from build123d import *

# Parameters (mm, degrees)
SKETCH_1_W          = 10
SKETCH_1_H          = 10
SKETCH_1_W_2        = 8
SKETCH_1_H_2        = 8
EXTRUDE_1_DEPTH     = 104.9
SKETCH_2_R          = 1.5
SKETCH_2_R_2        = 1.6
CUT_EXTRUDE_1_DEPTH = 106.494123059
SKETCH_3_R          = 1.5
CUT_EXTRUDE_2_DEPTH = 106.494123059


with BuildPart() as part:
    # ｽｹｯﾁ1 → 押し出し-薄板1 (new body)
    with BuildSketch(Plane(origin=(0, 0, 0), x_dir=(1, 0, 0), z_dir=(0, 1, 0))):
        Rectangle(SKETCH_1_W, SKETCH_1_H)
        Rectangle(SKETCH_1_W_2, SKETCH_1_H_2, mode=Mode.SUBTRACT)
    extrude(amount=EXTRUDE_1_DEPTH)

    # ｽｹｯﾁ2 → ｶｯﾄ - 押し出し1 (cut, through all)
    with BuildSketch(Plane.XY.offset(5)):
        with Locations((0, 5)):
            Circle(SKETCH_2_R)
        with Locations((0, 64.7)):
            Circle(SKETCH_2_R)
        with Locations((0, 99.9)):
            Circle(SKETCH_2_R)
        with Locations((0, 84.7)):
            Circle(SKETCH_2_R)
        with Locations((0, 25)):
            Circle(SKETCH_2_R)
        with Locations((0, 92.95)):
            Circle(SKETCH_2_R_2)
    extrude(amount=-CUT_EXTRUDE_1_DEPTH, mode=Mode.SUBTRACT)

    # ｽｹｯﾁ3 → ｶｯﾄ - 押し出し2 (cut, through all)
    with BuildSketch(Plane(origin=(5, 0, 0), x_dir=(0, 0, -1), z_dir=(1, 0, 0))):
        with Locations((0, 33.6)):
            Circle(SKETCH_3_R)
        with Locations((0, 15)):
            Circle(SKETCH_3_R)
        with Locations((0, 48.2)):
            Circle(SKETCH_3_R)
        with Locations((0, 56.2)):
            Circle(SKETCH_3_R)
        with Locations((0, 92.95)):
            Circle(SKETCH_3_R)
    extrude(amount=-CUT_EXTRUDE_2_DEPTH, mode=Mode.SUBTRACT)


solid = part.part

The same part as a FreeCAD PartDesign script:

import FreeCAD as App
import Part
import Sketcher

V = App.Vector

doc = App.newDocument("Part")
params = doc.addObject("Spreadsheet::Sheet", "Params")
for row, (alias, value) in enumerate([
    ("sketch1_width", "10 mm"),
    ("sketch1_width2", "8 mm"),
    ("pad1_length", "104.9 mm"),
    ("sketch2_diameter", "3 mm"),
    ("sketch2_diameter2", "3.2 mm"),
    ("sketch3_diameter", "3 mm"),
], start=1):
    params.set(f"A{row}", alias)
    params.set(f"B{row}", "=" + value)
    params.setAlias(f"B{row}", alias)

body = doc.addObject("PartDesign::Body", "Body")

# Sketch on XZ plane
sketch1 = body.newObject("Sketcher::SketchObject", "Sketch")
sketch1.AttachmentSupport = (doc.getObject("XZ_Plane"), [""])
sketch1.MapMode = "FlatFace"
sketch1.addGeometry([
    Part.LineSegment(V(-5, -5, 0), V(-5, 5, 0)),  # 0
    Part.LineSegment(V(-5, 5, 0), V(5, 5, 0)),  # 1
    Part.LineSegment(V(5, 5, 0), V(5, -5, 0)),  # 2
    Part.LineSegment(V(5, -5, 0), V(-5, -5, 0)),  # 3
    Part.LineSegment(V(4, 4, 0), V(-4, 4, 0)),  # 4
    Part.LineSegment(V(-4, 4, 0), V(-4, -4, 0)),  # 5
    Part.LineSegment(V(-4, -4, 0), V(4, -4, 0)),  # 6
    Part.LineSegment(V(4, -4, 0), V(4, 4, 0)),  # 7
], False)
sketch1.addConstraint([
    Sketcher.Constraint("Coincident", 0, 2, 1, 1),
    Sketcher.Constraint("Coincident", 1, 2, 2, 1),
    Sketcher.Constraint("Coincident", 2, 2, 3, 1),
    Sketcher.Constraint("Coincident", 3, 2, 0, 1),
    Sketcher.Constraint("Coincident", 4, 2, 5, 1),
    Sketcher.Constraint("Coincident", 5, 2, 6, 1),
    Sketcher.Constraint("Coincident", 6, 2, 7, 1),
    Sketcher.Constraint("Coincident", 7, 2, 4, 1),
    Sketcher.Constraint("Vertical", 0),
    Sketcher.Constraint("Horizontal", 1),
    Sketcher.Constraint("Vertical", 2),
    Sketcher.Constraint("Horizontal", 3),
    Sketcher.Constraint("Horizontal", 4),
    Sketcher.Constraint("Vertical", 5),
    Sketcher.Constraint("Horizontal", 6),
    Sketcher.Constraint("Vertical", 7),
    Sketcher.Constraint("Symmetric", 0, 2, 2, 2, -1, 1),
    Sketcher.Constraint("Symmetric", 4, 2, 6, 2, -1, 1),
    Sketcher.Constraint("Equal", 3, 0),
    Sketcher.Constraint("Equal", 6, 5),
    Sketcher.Constraint("DistanceX", 1, 1, 1, 2, 10.0),
    Sketcher.Constraint("DistanceX", 4, 2, 4, 1, 8.0),
])
sketch1.setExpression("Constraints[20]", "Params.sketch1_width")
sketch1.setExpression("Constraints[21]", "Params.sketch1_width2")
pad1 = body.newObject("PartDesign::Pad", "Pad")
pad1.Profile = sketch1
pad1.setExpression("Length", "Params.pad1_length")
pad1.Reversed = True

# Sketch on XY plane
sketch2 = body.newObject("Sketcher::SketchObject", "Sketch001")
sketch2.AttachmentSupport = (doc.getObject("XY_Plane"), [""])
sketch2.MapMode = "FlatFace"
sketch2.AttachmentOffset = App.Placement(V(0, 0, 5), App.Rotation())
sketch2.addGeometry([
    Part.Circle(V(0, 5, 0), V(0, 0, 1), 1.5),  # 0
    Part.Circle(V(0, 64.7, 0), V(0, 0, 1), 1.5),  # 1
    Part.Circle(V(0, 99.9, 0), V(0, 0, 1), 1.5),  # 2
    Part.Circle(V(0, 84.7, 0), V(0, 0, 1), 1.5),  # 3
    Part.Circle(V(0, 25, 0), V(0, 0, 1), 1.5),  # 4
    Part.Circle(V(0, 93, 0), V(0, 0, 1), 1.6),  # 5
], False)
sketch2.addConstraint([
    Sketcher.Constraint("Equal", 0, 1),
    Sketcher.Constraint("Equal", 1, 2),
    Sketcher.Constraint("Equal", 2, 3),
    Sketcher.Constraint("Equal", 3, 4),
    Sketcher.Constraint("PointOnObject", 0, 3, -2),
    Sketcher.Constraint("PointOnObject", 1, 3, -2),
    Sketcher.Constraint("PointOnObject", 2, 3, -2),
    Sketcher.Constraint("PointOnObject", 3, 3, -2),
    Sketcher.Constraint("PointOnObject", 4, 3, -2),
    Sketcher.Constraint("PointOnObject", 5, 3, -2),
    Sketcher.Constraint("Diameter", 0, 3.0),
    Sketcher.Constraint("Diameter", 5, 3.2),
    Sketcher.Constraint("DistanceY", -1, 1, 0, 3, 5.0),
    Sketcher.Constraint("DistanceY", -1, 1, 4, 3, 25.0),
    Sketcher.Constraint("DistanceY", 1, 3, 3, 3, 20.0),
    Sketcher.Constraint("DistanceY", -1, 1, 1, 3, 64.7),
    Sketcher.Constraint("DistanceY", -1, 1, 2, 3, 99.9),
    Sketcher.Constraint("DistanceY", -1, 1, 5, 3, 92.95),
])
sketch2.setExpression("Constraints[10]", "Params.sketch2_diameter")
sketch2.setExpression("Constraints[11]", "Params.sketch2_diameter2")
pocket1 = body.newObject("PartDesign::Pocket", "Pocket")
pocket1.Profile = sketch2
pocket1.Type = "ThroughAll"

# Sketch on YZ plane
sketch3 = body.newObject("Sketcher::SketchObject", "Sketch002")
sketch3.AttachmentSupport = (doc.getObject("YZ_Plane"), [""])
sketch3.MapMode = "FlatFace"
sketch3.AttachmentOffset = App.Placement(V(0, 0, 5), App.Rotation())
sketch3.addGeometry([
    Part.Circle(V(33.6, 0, 0), V(0, 0, 1), 1.5),  # 0
    Part.Circle(V(15, 0, 0), V(0, 0, 1), 1.5),  # 1
    Part.Circle(V(48.2, 0, 0), V(0, 0, 1), 1.5),  # 2
    Part.Circle(V(56.2, 0, 0), V(0, 0, 1), 1.5),  # 3
    Part.Circle(V(93, 0, 0), V(0, 0, 1), 1.5),  # 4
], False)
sketch3.addConstraint([
    Sketcher.Constraint("Equal", 0, 1),
    Sketcher.Constraint("Equal", 1, 2),
    Sketcher.Constraint("Equal", 2, 3),
    Sketcher.Constraint("Equal", 3, 4),
    Sketcher.Constraint("PointOnObject", 0, 3, -1),
    Sketcher.Constraint("PointOnObject", 1, 3, -1),
    Sketcher.Constraint("PointOnObject", 2, 3, -1),
    Sketcher.Constraint("PointOnObject", 3, 3, -1),
    Sketcher.Constraint("PointOnObject", 4, 3, -1),
    Sketcher.Constraint("Diameter", 0, 3.0),
    Sketcher.Constraint("DistanceX", -1, 1, 1, 3, 15.0),
    Sketcher.Constraint("DistanceX", 2, 3, 3, 3, 8.0),
    Sketcher.Constraint("DistanceX", -1, 1, 0, 3, 33.6),
    Sketcher.Constraint("DistanceX", -1, 1, 2, 3, 48.2),
    Sketcher.Constraint("DistanceX", -1, 1, 4, 3, 92.95),
])
sketch3.setExpression("Constraints[9]", "Params.sketch3_diameter")
pocket2 = body.newObject("PartDesign::Pocket", "Pocket001")
pocket2.Profile = sketch3
pocket2.Type = "ThroughAll"

doc.recompute()
